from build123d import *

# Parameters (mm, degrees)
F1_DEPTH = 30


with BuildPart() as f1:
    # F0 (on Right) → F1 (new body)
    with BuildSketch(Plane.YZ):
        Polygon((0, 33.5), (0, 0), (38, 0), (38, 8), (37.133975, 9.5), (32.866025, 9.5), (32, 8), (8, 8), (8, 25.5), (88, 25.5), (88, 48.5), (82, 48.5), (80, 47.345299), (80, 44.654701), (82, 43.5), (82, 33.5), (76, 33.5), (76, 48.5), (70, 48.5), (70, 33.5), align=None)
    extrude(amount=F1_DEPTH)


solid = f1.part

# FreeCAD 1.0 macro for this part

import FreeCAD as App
import Part
import Sketcher

V = App.Vector
Q = App.Units.Quantity

doc = App.newDocument("Part")
body = doc.addObject("PartDesign::Body", "Body")

# Sketch on YZ plane
sketch1 = body.newObject("Sketcher::SketchObject", "Sketch")
sketch1.AttachmentSupport = (doc.getObject("YZ_Plane"), [""])
sketch1.MapMode = "FlatFace"
sketch1.addGeometry(Part.LineSegment(V(0, 33.5, 0), V(0, 0, 0)), False)
sketch1.addGeometry(Part.LineSegment(V(0, 0, 0), V(38, 0, 0)), False)
sketch1.addGeometry(Part.LineSegment(V(38, 0, 0), V(38, 8, 0)), False)
sketch1.addGeometry(Part.LineSegment(V(38, 8, 0), V(37.1, 9.5, 0)), False)
sketch1.addGeometry(Part.LineSegment(V(37.1, 9.5, 0), V(32.9, 9.5, 0)), False)
sketch1.addGeometry(Part.LineSegment(V(32.9, 9.5, 0), V(32, 8, 0)), False)
sketch1.addGeometry(Part.LineSegment(V(32, 8, 0), V(8, 8, 0)), False)
sketch1.addGeometry(Part.LineSegment(V(8, 8, 0), V(8, 25.5, 0)), False)
sketch1.addGeometry(Part.LineSegment(V(8, 25.5, 0), V(88, 25.5, 0)), False)
sketch1.addGeometry(Part.LineSegment(V(88, 25.5, 0), V(88, 48.5, 0)), False)
sketch1.addGeometry(Part.LineSegment(V(88, 48.5, 0), V(82, 48.5, 0)), False)
sketch1.addGeometry(Part.LineSegment(V(82, 48.5, 0), V(80, 47.3, 0)), False)
sketch1.addGeometry(Part.LineSegment(V(80, 47.3, 0), V(80, 44.7, 0)), False)
sketch1.addGeometry(Part.LineSegment(V(80, 44.7, 0), V(82, 43.5, 0)), False)
sketch1.addGeometry(Part.LineSegment(V(82, 43.5, 0), V(82, 33.5, 0)), False)
sketch1.addGeometry(Part.LineSegment(V(82, 33.5, 0), V(76, 33.5, 0)), False)
sketch1.addGeometry(Part.LineSegment(V(76, 33.5, 0), V(76, 48.5, 0)), False)
sketch1.addGeometry(Part.LineSegment(V(76, 48.5, 0), V(70, 48.5, 0)), False)
sketch1.addGeometry(Part.LineSegment(V(70, 48.5, 0), V(70, 33.5, 0)), False)
sketch1.addGeometry(Part.LineSegment(V(70, 33.5, 0), V(0, 33.5, 0)), False)
sketch1.addConstraint(Sketcher.Constraint("Coincident", 0, 2, 1, 1))
sketch1.addConstraint(Sketcher.Constraint("Coincident", 1, 2, 2, 1))
sketch1.addConstraint(Sketcher.Constraint("Coincident", 2, 2, 3, 1))
sketch1.addConstraint(Sketcher.Constraint("Coincident", 3, 2, 4, 1))
sketch1.addConstraint(Sketcher.Constraint("Coincident", 4, 2, 5, 1))
sketch1.addConstraint(Sketcher.Constraint("Coincident", 5, 2, 6, 1))
sketch1.addConstraint(Sketcher.Constraint("Coincident", 6, 2, 7, 1))
sketch1.addConstraint(Sketcher.Constraint("Coincident", 7, 2, 8, 1))
sketch1.addConstraint(Sketcher.Constraint("Coincident", 8, 2, 9, 1))
sketch1.addConstraint(Sketcher.Constraint("Coincident", 9, 2, 10, 1))
sketch1.addConstraint(Sketcher.Constraint("Coincident", 10, 2, 11, 1))
sketch1.addConstraint(Sketcher.Constraint("Coincident", 11, 2, 12, 1))
sketch1.addConstraint(Sketcher.Constraint("Coincident", 12, 2, 13, 1))
sketch1.addConstraint(Sketcher.Constraint("Coincident", 13, 2, 14, 1))
sketch1.addConstraint(Sketcher.Constraint("Coincident", 14, 2, 15, 1))
sketch1.addConstraint(Sketcher.Constraint("Coincident", 15, 2, 16, 1))
sketch1.addConstraint(Sketcher.Constraint("Coincident", 16, 2, 17, 1))
sketch1.addConstraint(Sketcher.Constraint("Coincident", 17, 2, 18, 1))
sketch1.addConstraint(Sketcher.Constraint("Coincident", 18, 2, 19, 1))
sketch1.addConstraint(Sketcher.Constraint("Coincident", 19, 2, 0, 1))
sketch1.addConstraint(Sketcher.Constraint("Vertical", 0))
sketch1.addConstraint(Sketcher.Constraint("Horizontal", 1))
sketch1.addConstraint(Sketcher.Constraint("Vertical", 2))
sketch1.addConstraint(Sketcher.Constraint("Horizontal", 4))
sketch1.addConstraint(Sketcher.Constraint("Horizontal", 6))
sketch1.addConstraint(Sketcher.Constraint("Vertical", 7))
sketch1.addConstraint(Sketcher.Constraint("Horizontal", 8))
sketch1.addConstraint(Sketcher.Constraint("Vertical", 9))
sketch1.addConstraint(Sketcher.Constraint("Horizontal", 10))
sketch1.addConstraint(Sketcher.Constraint("Vertical", 12))
sketch1.addConstraint(Sketcher.Constraint("Vertical", 14))
sketch1.addConstraint(Sketcher.Constraint("Horizontal", 15))
sketch1.addConstraint(Sketcher.Constraint("Vertical", 16))
sketch1.addConstraint(Sketcher.Constraint("Horizontal", 17))
sketch1.addConstraint(Sketcher.Constraint("Vertical", 18))
sketch1.addConstraint(Sketcher.Constraint("Horizontal", 19))
sketch1.addConstraint(Sketcher.Constraint("Coincident", 0, 2, -1, 1))
sketch1.addConstraint(Sketcher.Constraint("Perpendicular", 3, 11))
sketch1.addConstraint(Sketcher.Constraint("Perpendicular", 5, 13))
sketch1.addConstraint(Sketcher.Constraint("Horizontal", 2, 2, 5, 2))
sketch1.addConstraint(Sketcher.Constraint("Horizontal", 10, 2, 16, 2))
sketch1.addConstraint(Sketcher.Constraint("Horizontal", 15, 2, 18, 2))
sketch1.addConstraint(Sketcher.Constraint("Vertical", 10, 2, 13, 2))
sketch1.addConstraint(Sketcher.Constraint("Equal", 10, 15))
sketch1.addConstraint(Sketcher.Constraint("Equal", 15, 17))
sketch1.addConstraint(Sketcher.Constraint("Equal", 3, 5))
sketch1.addConstraint(Sketcher.Constraint("DistanceX", 1, 1, 1, 2, 38.0))
sketch1.addConstraint(Sketcher.Constraint("DistanceX", 6, 2, 6, 1, 24.0))
sketch1.addConstraint(Sketcher.Constraint("DistanceX", 8, 1, 8, 2, 80.0))
sketch1.addConstraint(Sketcher.Constraint("DistanceX", 10, 2, 10, 1, 6.0))
sketch1.addConstraint(Sketcher.Constraint("DistanceX", 19, 2, 19, 1, 70.0))
sketch1.addConstraint(Sketcher.Constraint("DistanceY", 2, 1, 2, 2, 8.0))
sketch1.addConstraint(Sketcher.Constraint("DistanceY", 9, 1, 9, 2, 23.0))
sketch1.addConstraint(Sketcher.Constraint("DistanceY", 14, 2, 14, 1, 10.0))
sketch1.addConstraint(Sketcher.Constraint("DistanceY", 16, 1, 16, 2, 15.0))
sketch1.addConstraint(Sketcher.Constraint("Angle", 3, Q("119.999988 deg")))
sketch1.addConstraint(Sketcher.Constraint("DistanceY", 0, 2, 0, 1, 33.5))
sketch1.addConstraint(Sketcher.Constraint("DistanceX", -1, 1, 11, 2, 80.0))
sketch1.addConstraint(Sketcher.Constraint("DistanceY", 4, 2, 7, 2, 16.0))
pad1 = body.newObject("PartDesign::Pad", "Pad")
pad1.Profile = sketch1
pad1.Length = 30

doc.recompute()
